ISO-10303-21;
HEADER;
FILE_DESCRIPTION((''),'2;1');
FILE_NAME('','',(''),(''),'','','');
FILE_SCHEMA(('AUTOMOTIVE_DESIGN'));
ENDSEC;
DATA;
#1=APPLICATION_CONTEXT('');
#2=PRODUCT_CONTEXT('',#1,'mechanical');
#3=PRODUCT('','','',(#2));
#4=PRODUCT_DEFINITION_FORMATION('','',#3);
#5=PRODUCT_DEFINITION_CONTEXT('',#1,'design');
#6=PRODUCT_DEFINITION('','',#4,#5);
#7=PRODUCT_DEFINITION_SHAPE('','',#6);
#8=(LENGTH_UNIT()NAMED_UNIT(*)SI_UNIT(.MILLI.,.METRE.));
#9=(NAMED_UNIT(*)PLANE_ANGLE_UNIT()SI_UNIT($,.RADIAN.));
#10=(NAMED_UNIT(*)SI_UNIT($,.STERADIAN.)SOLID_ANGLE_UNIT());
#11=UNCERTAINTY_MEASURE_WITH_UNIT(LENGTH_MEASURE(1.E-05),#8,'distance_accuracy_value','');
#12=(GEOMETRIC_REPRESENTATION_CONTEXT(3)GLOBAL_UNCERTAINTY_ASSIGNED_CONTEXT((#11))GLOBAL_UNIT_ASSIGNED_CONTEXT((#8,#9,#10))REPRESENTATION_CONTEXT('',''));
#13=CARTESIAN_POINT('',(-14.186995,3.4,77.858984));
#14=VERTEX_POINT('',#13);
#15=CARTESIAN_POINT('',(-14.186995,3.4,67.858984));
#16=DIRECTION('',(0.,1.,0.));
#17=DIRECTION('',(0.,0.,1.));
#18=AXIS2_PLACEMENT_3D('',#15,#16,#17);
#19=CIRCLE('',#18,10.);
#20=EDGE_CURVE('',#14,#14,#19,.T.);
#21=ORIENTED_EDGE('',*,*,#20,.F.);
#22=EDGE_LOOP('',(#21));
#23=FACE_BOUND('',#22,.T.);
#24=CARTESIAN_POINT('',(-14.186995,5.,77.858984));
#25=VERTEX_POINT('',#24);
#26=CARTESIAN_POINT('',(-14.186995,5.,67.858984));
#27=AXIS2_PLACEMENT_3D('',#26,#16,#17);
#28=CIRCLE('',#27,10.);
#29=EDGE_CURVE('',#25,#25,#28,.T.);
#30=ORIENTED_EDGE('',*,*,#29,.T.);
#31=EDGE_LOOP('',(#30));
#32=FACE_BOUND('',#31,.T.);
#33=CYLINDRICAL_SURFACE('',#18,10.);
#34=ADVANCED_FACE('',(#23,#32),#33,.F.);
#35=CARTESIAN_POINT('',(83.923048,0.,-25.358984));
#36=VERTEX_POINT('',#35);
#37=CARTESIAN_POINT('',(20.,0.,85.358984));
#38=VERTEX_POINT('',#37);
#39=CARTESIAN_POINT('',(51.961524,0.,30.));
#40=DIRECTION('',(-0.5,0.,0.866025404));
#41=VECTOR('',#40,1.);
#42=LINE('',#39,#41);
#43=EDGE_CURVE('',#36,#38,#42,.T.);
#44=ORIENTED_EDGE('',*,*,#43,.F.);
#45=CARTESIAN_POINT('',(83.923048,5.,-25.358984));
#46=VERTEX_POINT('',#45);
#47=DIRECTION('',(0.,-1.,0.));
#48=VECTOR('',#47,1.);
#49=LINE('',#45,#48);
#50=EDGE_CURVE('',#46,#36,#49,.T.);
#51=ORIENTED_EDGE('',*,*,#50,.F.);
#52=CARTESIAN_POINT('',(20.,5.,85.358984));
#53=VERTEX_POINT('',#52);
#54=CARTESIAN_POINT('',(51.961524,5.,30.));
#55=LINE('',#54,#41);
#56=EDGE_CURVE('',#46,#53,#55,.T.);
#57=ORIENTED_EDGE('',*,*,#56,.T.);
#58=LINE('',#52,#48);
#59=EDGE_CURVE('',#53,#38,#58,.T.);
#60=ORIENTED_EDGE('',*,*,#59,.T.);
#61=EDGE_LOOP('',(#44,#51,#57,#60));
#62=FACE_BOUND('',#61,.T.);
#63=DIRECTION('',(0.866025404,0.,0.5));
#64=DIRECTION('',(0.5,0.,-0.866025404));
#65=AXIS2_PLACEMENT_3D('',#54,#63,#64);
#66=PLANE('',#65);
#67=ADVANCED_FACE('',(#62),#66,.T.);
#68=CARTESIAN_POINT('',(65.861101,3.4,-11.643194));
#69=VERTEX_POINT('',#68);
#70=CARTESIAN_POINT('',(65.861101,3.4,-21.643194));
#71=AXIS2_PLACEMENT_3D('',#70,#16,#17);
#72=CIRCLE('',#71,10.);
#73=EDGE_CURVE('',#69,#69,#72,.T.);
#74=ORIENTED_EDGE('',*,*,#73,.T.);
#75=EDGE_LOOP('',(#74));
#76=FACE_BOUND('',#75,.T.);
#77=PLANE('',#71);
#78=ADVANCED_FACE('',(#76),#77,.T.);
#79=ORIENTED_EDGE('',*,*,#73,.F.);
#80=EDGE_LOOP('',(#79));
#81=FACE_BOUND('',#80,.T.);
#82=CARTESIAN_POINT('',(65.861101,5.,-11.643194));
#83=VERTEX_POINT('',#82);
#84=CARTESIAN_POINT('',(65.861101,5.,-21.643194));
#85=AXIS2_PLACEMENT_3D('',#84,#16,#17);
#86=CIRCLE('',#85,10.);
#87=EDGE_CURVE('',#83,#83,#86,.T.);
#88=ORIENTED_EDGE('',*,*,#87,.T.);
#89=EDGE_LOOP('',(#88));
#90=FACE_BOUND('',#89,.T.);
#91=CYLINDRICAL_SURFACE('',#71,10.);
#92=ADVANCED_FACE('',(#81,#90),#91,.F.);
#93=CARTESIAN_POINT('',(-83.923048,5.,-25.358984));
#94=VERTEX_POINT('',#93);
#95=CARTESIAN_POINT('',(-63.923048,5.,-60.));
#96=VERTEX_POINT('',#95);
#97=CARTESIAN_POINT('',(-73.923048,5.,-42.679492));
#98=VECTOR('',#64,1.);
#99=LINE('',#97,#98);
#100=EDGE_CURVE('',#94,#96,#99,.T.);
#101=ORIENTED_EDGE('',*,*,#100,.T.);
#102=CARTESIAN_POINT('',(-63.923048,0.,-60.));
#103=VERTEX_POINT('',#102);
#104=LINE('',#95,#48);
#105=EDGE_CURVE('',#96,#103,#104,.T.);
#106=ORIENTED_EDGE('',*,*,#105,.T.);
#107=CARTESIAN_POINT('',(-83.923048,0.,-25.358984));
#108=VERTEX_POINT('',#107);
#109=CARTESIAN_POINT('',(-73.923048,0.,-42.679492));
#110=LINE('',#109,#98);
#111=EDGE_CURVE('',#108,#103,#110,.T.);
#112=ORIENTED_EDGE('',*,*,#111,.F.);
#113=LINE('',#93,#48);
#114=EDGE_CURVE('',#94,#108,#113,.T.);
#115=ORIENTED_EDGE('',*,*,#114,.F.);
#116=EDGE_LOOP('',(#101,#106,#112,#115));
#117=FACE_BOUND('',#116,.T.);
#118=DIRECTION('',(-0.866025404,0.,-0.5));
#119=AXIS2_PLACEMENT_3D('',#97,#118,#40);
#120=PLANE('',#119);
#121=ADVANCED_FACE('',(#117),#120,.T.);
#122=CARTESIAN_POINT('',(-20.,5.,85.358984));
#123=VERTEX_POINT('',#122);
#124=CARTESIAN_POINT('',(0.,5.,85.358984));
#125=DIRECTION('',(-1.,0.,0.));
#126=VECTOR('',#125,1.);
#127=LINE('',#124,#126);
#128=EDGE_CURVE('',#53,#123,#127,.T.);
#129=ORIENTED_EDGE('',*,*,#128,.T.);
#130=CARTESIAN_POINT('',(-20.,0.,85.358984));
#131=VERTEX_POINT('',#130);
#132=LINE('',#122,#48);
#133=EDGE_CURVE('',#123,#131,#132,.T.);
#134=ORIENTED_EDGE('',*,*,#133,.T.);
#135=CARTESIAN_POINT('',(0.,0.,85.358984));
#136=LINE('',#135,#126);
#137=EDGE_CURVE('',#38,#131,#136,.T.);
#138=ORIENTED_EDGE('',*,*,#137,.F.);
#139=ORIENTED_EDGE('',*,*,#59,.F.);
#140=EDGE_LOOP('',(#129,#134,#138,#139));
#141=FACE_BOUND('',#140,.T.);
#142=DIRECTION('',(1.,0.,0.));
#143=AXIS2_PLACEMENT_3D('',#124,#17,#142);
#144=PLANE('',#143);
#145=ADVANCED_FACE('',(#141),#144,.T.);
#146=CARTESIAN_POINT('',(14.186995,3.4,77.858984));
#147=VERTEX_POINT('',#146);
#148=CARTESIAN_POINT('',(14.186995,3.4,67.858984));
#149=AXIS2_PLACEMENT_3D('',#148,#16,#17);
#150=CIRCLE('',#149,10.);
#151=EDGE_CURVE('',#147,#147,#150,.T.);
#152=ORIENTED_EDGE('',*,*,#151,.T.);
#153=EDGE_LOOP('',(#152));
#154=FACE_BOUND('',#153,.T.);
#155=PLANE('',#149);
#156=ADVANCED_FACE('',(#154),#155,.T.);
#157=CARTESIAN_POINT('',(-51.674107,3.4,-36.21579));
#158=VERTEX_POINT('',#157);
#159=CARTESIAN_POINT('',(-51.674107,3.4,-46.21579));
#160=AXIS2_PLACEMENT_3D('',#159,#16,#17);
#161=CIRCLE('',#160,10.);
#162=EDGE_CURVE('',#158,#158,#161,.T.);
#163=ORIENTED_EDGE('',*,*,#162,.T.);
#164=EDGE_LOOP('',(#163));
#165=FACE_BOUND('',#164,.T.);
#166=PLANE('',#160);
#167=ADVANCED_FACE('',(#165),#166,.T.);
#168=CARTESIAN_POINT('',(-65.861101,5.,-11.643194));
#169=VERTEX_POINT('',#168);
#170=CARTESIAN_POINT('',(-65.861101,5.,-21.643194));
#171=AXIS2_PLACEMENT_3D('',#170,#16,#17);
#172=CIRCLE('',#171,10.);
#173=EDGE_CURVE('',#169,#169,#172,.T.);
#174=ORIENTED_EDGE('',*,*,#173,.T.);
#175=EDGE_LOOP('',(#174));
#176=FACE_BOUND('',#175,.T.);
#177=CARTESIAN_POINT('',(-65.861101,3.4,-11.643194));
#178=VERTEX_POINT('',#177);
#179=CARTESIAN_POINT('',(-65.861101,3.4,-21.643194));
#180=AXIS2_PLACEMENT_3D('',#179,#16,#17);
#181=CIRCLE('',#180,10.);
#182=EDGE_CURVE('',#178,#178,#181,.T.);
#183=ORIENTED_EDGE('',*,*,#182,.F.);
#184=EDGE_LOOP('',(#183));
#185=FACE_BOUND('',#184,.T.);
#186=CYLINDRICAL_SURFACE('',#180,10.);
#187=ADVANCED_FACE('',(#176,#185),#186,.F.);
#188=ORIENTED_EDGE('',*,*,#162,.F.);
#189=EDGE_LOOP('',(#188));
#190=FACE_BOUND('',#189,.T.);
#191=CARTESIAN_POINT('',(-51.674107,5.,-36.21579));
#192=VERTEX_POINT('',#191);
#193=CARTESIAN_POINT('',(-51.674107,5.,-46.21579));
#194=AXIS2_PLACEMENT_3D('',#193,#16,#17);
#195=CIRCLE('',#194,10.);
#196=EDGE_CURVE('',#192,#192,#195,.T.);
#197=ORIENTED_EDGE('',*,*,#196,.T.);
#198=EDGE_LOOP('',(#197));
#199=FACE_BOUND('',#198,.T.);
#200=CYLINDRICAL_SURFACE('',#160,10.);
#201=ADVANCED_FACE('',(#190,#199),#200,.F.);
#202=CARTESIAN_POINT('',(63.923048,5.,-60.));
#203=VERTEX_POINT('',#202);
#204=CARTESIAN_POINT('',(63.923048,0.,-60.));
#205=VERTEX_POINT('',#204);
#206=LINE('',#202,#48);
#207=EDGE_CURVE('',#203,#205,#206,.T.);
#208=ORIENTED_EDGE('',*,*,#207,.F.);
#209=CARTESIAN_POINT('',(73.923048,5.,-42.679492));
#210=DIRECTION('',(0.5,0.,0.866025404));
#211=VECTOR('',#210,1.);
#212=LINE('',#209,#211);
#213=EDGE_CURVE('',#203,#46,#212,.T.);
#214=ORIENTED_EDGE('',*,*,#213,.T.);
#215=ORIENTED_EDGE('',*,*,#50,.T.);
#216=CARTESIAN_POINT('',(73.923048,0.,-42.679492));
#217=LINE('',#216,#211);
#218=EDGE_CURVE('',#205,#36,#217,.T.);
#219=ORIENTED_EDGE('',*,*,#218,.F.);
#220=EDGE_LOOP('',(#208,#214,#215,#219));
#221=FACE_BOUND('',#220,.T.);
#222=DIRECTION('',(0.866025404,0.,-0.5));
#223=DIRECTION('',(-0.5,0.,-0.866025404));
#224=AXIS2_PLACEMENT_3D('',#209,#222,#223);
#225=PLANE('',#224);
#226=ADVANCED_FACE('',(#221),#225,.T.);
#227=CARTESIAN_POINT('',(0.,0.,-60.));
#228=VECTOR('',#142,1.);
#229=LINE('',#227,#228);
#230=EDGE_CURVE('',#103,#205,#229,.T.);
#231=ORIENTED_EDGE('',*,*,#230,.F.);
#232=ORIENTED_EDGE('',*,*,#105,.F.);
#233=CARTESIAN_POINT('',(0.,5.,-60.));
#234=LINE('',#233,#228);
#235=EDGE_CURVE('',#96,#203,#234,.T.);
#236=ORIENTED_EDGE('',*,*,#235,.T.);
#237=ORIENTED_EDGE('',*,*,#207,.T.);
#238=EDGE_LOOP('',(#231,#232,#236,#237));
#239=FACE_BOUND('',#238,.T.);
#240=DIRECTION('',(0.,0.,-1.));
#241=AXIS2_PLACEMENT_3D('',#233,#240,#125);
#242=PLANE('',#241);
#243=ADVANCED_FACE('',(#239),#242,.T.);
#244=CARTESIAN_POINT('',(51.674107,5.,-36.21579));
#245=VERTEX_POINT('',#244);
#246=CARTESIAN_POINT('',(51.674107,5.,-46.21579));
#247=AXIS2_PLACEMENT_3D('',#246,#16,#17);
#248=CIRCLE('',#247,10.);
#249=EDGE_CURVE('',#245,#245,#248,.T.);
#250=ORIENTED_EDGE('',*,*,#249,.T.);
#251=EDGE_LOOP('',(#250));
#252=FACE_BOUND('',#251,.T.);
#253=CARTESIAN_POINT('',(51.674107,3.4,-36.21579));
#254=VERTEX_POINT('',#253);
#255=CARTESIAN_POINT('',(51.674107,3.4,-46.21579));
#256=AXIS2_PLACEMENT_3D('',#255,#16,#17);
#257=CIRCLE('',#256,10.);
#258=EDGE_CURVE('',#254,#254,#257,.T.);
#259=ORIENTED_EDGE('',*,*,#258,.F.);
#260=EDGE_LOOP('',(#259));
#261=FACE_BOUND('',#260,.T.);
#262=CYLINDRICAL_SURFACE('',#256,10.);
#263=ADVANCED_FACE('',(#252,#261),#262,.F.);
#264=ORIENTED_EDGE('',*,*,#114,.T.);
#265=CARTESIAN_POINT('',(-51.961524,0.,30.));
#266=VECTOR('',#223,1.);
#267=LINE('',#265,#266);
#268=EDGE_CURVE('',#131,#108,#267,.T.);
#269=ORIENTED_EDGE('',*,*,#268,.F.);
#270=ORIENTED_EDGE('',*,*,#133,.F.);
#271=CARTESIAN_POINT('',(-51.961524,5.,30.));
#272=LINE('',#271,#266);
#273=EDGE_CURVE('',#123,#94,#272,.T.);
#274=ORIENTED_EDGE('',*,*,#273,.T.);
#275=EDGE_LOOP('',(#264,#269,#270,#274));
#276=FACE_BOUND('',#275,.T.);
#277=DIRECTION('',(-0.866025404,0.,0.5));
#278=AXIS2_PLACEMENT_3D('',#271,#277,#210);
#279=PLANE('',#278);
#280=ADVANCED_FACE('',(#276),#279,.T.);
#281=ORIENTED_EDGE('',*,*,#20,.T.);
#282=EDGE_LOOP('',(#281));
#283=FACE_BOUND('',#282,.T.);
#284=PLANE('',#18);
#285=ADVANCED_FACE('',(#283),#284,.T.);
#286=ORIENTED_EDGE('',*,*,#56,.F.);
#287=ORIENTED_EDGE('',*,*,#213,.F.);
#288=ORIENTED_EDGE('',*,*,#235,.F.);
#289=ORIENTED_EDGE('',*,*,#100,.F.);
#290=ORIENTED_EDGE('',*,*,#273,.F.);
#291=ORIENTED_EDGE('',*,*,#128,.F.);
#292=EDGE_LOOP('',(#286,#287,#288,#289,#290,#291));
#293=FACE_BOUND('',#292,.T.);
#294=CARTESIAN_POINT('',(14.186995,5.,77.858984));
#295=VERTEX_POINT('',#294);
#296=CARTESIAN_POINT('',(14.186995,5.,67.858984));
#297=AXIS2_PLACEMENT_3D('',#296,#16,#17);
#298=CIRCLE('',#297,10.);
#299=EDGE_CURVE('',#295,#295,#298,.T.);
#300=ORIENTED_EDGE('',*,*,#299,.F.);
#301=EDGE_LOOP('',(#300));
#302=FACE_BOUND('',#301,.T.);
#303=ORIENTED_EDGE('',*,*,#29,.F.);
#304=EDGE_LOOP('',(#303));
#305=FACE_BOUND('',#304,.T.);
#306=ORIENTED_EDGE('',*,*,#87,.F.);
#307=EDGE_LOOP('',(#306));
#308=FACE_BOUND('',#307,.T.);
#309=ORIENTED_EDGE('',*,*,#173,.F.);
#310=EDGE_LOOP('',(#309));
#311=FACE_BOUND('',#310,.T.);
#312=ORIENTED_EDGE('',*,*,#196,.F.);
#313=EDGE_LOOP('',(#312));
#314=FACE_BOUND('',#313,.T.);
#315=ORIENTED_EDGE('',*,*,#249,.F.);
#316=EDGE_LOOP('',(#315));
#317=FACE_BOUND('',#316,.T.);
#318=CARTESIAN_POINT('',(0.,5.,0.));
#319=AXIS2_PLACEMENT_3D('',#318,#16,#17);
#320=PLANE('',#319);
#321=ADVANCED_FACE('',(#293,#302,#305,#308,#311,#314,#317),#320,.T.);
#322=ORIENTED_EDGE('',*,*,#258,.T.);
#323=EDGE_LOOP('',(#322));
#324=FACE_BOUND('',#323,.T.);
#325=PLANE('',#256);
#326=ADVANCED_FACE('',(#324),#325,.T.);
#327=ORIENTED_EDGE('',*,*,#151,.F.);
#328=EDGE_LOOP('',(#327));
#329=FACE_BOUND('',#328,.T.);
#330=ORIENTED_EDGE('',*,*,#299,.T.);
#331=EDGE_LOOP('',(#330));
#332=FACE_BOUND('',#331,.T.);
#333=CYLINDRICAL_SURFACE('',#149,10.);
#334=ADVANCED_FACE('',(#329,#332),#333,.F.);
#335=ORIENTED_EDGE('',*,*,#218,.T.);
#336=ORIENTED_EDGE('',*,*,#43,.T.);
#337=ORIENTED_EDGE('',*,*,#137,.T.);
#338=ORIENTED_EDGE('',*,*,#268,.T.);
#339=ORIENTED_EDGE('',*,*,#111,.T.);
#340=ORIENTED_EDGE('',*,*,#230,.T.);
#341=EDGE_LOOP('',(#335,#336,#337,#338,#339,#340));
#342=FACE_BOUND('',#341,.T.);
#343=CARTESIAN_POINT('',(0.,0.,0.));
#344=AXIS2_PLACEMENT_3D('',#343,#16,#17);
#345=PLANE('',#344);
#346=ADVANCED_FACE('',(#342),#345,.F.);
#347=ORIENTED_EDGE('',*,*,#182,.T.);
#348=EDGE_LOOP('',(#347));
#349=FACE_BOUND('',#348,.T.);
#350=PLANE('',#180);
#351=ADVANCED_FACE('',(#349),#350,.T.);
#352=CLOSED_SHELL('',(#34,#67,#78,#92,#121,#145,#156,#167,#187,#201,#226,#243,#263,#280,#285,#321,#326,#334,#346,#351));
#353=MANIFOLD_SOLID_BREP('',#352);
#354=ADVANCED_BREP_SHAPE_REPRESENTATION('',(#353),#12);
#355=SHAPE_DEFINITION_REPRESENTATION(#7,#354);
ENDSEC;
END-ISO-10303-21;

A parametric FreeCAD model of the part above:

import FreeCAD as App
import Part
import Sketcher
from FreeCAD import Vector
Q = App.Units.Quantity


def add_polygon(sketch, points):
    """Adds a closed chain of lines whose ends are joined by coincident constraints."""
    first, n = sketch.GeometryCount, len(points)
    for a, b in zip(points, points[1:] + points[:1]):
        sketch.addGeometry(Part.LineSegment(App.Vector(*a, 0), App.Vector(*b, 0)), False)
    for i in range(n):
        sketch.addConstraint(Sketcher.Constraint("Coincident", first + i, 2, first + (i + 1) % n, 1))

doc = App.newDocument("Part")
body = doc.addObject("PartDesign::Body", "Body")

# Sketch on XZ plane
sketch1 = body.newObject("Sketcher::SketchObject", "Sketch")
sketch1.AttachmentSupport = (doc.getObject("XZ_Plane"), [""])
sketch1.MapMode = "FlatFace"
add_polygon(sketch1, [(20, 85), (84, -25), (64, -60), (-64, -60), (-84, -25), (-20, 85)])  # lines 0-5
sketch1.addConstraint([
    Sketcher.Constraint("Horizontal", 2),
    Sketcher.Constraint("Horizontal", 5),
    Sketcher.Constraint("Symmetric", 0, 2, 3, 2, -2),
    Sketcher.Constraint("Parallel", 0, 3),
    Sketcher.Constraint("Parallel", 1, 4),
    Sketcher.Constraint("Equal", 1, 3),
    Sketcher.Constraint("DistanceX", 5, 1, 5, 2, Q("40 mm")),
    Sketcher.Constraint("Angle", 0, Q("-60 deg")),
    Sketcher.Constraint("Distance", 1, Q("40 mm")),
    Sketcher.Constraint("DistanceY", 1, 2, -1, 1, Q("60 mm")),
    Sketcher.Constraint("DistanceX", 2, 2, 2, 1, Q("127.846097 mm")),
])
pad1 = body.newObject("PartDesign::Pad", "Pad")
pad1.Profile = sketch1
pad1.Length = 5
pad1.Reversed = True

# Sketch on XZ plane
sketch2 = body.newObject("Sketcher::SketchObject", "Sketch001")
sketch2.AttachmentSupport = (doc.getObject("XZ_Plane"), [""])
sketch2.MapMode = "FlatFace"
sketch2.AttachmentOffset = App.Placement(Vector(0, 0, -5), App.Rotation())
sketch2.addGeometry([
    Part.Circle(Vector(-14, 68, 0), Vector(0, 0, 1), 10),
    Part.Circle(Vector(14, 68, 0), Vector(0, 0, 1), 10),
], False)
sketch2.addConstraint([
    Sketcher.Constraint("Equal", 0, 1),
    Sketcher.Constraint("Symmetric", 0, 3, 1, 3, -2),
    Sketcher.Constraint("Diameter", 0, Q("20 mm")),
    Sketcher.Constraint("DistanceX", 0, 3, 1, 3, Q("28.373989 mm")),
    Sketcher.Constraint("DistanceY", -1, 1, 0, 3, Q("67.858984 mm")),
])
pocket1 = body.newObject("PartDesign::Pocket", "Pocket")
pocket1.Profile = sketch2
pocket1.Length = 1.6
pocket1.Reversed = True
doc.recompute()

polarpattern = body.newObject("PartDesign::PolarPattern", "PolarPattern")
polarpattern.Originals = [pocket1]
polarpattern.Axis = (doc.getObject("Y_Axis"), [""])
polarpattern.Angle = 360
polarpattern.Occurrences = 3
body.Tip = polarpattern

doc.recompute()
